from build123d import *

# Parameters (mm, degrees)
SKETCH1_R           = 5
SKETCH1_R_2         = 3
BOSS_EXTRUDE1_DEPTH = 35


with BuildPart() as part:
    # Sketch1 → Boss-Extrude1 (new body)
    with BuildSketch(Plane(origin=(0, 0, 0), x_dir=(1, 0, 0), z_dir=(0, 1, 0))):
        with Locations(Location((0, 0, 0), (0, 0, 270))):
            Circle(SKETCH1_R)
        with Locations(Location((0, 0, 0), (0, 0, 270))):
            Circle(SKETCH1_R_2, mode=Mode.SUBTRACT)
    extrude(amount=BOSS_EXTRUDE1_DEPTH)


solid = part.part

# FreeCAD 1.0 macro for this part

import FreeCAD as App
import Part
import Sketcher

V = App.Vector

doc = App.newDocument("Part")
body = doc.addObject("PartDesign::Body", "Body")

sketch1 = body.newObject("Sketcher::SketchObject", "Sketch")
sketch1.AttachmentSupport = (doc.getObject("XZ_Plane"), [""])
sketch1.MapMode = "FlatFace"
sketch1.addGeometry([
    Part.Circle(V(0, 0, 0), V(0, 0, 1), 5),
    Part.Circle(V(0, 0, 0), V(0, 0, 1), 3),
], False)
sketch1.addConstraint([
    Sketcher.Constraint("Coincident", 0, 3, -1, 1),
    Sketcher.Constraint("Coincident", 1, 3, -1, 1),
    Sketcher.Constraint("Diameter", 0, 10.0),
    Sketcher.Constraint("Diameter", 1, 6.0),
])
pad1 = body.newObject("PartDesign::Pad", "Pad")
pad1.Profile = sketch1
pad1.Length = 35
pad1.Reversed = True

doc.recompute()
